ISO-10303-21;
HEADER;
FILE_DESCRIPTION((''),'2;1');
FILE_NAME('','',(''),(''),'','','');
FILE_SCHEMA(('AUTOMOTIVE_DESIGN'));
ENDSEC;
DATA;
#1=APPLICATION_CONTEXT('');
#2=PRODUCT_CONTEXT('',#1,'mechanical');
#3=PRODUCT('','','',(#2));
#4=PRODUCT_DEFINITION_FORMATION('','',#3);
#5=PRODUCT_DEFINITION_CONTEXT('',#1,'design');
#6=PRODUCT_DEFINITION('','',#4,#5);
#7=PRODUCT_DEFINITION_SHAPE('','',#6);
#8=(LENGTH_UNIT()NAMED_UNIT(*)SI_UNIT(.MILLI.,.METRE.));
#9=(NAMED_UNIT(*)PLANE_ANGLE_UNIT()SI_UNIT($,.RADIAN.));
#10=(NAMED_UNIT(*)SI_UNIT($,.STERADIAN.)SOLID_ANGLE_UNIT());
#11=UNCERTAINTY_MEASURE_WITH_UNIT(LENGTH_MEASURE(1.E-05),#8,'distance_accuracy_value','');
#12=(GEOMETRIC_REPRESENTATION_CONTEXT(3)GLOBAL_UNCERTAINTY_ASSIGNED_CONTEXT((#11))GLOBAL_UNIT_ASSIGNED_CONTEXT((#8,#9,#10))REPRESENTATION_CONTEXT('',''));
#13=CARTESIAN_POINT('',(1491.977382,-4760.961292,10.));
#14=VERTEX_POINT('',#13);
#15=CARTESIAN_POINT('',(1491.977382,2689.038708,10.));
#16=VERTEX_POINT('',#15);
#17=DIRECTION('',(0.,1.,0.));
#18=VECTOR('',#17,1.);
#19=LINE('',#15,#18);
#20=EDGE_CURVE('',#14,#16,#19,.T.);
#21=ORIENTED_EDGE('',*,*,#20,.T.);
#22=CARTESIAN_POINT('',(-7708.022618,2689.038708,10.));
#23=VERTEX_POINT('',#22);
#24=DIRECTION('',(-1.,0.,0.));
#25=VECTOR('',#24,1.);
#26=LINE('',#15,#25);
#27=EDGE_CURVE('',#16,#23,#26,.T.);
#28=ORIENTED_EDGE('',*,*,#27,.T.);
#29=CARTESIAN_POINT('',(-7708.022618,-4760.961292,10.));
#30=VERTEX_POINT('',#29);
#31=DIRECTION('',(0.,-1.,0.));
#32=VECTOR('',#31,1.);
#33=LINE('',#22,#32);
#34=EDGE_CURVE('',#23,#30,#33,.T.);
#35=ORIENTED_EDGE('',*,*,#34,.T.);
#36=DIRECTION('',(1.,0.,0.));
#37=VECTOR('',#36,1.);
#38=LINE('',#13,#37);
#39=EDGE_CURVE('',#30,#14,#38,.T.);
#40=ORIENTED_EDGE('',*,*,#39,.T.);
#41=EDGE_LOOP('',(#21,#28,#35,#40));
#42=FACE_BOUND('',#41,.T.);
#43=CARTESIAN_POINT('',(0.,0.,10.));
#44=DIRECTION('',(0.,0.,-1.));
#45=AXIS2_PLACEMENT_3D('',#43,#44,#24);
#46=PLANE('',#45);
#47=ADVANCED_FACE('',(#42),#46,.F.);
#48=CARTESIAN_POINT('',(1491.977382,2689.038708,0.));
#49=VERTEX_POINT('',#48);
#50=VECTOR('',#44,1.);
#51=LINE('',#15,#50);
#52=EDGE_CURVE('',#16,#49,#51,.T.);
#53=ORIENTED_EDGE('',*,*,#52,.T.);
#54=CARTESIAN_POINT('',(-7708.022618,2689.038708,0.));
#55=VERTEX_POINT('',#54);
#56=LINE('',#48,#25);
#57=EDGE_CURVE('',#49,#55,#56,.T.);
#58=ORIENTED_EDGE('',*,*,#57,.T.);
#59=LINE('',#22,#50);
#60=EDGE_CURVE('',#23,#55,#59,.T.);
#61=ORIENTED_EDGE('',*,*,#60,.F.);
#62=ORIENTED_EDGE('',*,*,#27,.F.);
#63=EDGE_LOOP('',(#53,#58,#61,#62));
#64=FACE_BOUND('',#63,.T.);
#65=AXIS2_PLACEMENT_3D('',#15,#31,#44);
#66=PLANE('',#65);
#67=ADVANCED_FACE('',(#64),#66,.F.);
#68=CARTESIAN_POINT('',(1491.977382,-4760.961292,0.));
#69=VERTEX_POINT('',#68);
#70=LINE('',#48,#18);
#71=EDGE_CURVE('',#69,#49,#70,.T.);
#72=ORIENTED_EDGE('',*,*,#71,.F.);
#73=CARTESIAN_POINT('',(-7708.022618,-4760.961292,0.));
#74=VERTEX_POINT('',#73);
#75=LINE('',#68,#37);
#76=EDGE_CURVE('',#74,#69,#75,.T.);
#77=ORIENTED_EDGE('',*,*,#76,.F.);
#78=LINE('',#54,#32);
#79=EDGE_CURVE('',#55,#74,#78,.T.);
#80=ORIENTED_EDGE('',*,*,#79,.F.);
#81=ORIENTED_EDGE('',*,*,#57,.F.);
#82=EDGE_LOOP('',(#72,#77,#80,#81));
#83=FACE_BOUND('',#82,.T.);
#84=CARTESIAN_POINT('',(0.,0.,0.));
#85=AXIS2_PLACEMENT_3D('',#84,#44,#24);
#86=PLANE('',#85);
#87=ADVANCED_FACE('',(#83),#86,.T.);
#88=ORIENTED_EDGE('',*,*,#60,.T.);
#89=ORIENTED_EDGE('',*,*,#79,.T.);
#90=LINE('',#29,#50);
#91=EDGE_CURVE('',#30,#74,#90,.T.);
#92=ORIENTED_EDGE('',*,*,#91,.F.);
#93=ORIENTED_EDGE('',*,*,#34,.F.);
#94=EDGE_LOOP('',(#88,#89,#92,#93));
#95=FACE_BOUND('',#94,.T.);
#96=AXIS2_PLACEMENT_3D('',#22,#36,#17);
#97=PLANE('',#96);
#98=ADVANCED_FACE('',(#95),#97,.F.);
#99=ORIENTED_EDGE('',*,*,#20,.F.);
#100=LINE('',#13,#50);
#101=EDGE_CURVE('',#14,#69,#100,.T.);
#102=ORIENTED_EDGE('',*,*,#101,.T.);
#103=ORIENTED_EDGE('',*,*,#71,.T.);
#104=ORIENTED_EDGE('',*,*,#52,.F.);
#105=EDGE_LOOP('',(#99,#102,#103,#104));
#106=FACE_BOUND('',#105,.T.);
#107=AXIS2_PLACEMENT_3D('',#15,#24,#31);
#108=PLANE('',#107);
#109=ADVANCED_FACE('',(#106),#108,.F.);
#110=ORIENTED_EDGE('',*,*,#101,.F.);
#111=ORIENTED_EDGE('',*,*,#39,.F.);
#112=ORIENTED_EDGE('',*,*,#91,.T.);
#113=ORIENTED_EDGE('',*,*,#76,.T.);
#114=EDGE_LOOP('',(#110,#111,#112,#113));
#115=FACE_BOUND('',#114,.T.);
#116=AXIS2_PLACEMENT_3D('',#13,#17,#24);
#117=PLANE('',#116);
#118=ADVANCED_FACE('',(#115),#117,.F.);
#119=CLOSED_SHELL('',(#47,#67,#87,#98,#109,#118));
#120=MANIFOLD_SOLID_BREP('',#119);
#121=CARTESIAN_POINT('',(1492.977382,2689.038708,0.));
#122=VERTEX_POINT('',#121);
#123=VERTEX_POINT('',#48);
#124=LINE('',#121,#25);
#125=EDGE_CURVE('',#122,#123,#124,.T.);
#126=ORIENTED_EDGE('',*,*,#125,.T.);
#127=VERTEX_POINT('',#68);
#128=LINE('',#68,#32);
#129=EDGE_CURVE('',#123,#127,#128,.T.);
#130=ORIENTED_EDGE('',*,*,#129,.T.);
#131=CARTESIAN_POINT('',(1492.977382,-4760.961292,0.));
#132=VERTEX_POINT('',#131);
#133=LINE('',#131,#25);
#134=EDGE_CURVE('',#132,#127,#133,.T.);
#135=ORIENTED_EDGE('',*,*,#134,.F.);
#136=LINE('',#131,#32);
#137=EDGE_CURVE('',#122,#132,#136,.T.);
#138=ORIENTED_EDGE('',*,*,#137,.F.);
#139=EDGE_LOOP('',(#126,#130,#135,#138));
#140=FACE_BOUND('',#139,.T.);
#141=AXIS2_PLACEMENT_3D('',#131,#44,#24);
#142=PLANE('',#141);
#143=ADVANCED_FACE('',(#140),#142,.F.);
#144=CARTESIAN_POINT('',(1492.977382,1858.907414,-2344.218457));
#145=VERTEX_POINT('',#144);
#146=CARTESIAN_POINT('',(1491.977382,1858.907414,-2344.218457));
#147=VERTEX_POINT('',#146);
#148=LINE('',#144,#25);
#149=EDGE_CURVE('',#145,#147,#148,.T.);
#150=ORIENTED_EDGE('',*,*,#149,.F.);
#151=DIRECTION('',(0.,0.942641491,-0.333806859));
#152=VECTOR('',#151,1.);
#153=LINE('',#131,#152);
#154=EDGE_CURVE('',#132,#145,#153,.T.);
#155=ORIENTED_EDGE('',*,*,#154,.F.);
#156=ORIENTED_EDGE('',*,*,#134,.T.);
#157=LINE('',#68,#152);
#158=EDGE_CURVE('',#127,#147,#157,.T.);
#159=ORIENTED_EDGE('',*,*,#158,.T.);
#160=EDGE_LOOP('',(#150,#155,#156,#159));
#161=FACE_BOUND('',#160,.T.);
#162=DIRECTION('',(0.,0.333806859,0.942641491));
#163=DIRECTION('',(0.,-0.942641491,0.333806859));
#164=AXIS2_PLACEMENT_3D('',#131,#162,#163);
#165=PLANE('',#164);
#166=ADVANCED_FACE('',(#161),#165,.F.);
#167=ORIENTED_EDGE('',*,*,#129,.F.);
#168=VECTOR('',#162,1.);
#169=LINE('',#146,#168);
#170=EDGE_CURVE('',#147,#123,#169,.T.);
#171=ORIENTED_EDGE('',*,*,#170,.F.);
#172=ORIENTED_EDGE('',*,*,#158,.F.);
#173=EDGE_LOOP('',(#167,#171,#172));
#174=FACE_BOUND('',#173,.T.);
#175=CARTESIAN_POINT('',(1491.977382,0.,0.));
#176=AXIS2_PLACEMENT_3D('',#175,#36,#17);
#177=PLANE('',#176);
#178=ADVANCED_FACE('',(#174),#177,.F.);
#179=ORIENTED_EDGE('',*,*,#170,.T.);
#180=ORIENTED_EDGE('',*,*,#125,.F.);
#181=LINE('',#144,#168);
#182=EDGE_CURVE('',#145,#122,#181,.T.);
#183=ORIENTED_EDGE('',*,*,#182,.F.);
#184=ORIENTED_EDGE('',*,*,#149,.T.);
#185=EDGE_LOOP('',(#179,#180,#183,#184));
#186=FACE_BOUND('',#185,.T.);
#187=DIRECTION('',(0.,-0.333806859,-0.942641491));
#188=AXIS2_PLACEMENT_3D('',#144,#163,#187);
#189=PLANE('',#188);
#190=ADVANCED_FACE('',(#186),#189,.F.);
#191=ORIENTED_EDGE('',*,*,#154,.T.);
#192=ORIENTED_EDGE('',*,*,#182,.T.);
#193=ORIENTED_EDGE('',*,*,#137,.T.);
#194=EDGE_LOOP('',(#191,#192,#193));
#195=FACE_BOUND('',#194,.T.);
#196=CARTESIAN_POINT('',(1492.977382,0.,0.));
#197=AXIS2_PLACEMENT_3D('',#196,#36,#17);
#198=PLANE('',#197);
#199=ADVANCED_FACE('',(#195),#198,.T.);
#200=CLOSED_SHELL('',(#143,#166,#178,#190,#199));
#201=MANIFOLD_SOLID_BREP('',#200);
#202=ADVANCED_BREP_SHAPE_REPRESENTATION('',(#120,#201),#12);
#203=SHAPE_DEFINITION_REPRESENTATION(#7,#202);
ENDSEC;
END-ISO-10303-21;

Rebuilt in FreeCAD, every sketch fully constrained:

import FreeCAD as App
import Part
import Sketcher
from FreeCAD import Vector
Q = App.Units.Quantity


def add_polygon(sketch, points):
    """Adds a closed chain of lines whose ends are joined by coincident constraints."""
    first, n = sketch.GeometryCount, len(points)
    for a, b in zip(points, points[1:] + points[:1]):
        sketch.addGeometry(Part.LineSegment(App.Vector(*a, 0), App.Vector(*b, 0)), False)
    for i in range(n):
        sketch.addConstraint(Sketcher.Constraint("Coincident", first + i, 2, first + (i + 1) % n, 1))

doc = App.newDocument("Part")
body = doc.addObject("PartDesign::Body", "Body")

# Sketch on XY plane
sketch1 = body.newObject("Sketcher::SketchObject", "Sketch")
sketch1.AttachmentSupport = (doc.getObject("XY_Plane"), [""])
sketch1.MapMode = "FlatFace"
add_polygon(sketch1, [(-7708, 2689), (-7708, -4761), (1492, -4761), (1492, 2689)])  # lines 0-3
sketch1.addConstraint(Sketcher.Constraint("Vertical", 0))
sketch1.addConstraint(Sketcher.Constraint("Horizontal", 1))
sketch1.addConstraint(Sketcher.Constraint("Vertical", 2))
sketch1.addConstraint(Sketcher.Constraint("Horizontal", 3))
sketch1.addConstraint(Sketcher.Constraint("DistanceX", 1, 1, 1, 2, Q("9200 mm")))
sketch1.addConstraint(Sketcher.Constraint("DistanceY", 0, 2, 0, 1, Q("7450 mm")))
sketch1.addConstraint(Sketcher.Constraint("DistanceX", 0, 2, -1, 1, Q("7708.022618 mm")))
sketch1.addConstraint(Sketcher.Constraint("DistanceY", 0, 2, -1, 1, Q("4760.961292 mm")))
pad1 = body.newObject("PartDesign::Pad", "Pad")
pad1.Profile = sketch1
pad1.Length = 10
body2 = doc.addObject("PartDesign::Body", "Body001")

# Sketch on YZ plane
sketch2 = body2.newObject("Sketcher::SketchObject", "Sketch001")
sketch2.AttachmentSupport = (doc.getObject("YZ_Plane001"), [""])
sketch2.MapMode = "FlatFace"
sketch2.AttachmentOffset = App.Placement(Vector(0, 0, 1491.977382), App.Rotation())
add_polygon(sketch2, [(-4761, 0), (1859, -2344), (2689, 0)])  # lines 0-2
sketch2.addConstraint(Sketcher.Constraint("Horizontal", 2))
sketch2.addConstraint(Sketcher.Constraint("PointOnObject", 1, 2, -1))
sketch2.addConstraint(Sketcher.Constraint("Perpendicular", 0, 1))
sketch2.addConstraint(Sketcher.Constraint("DistanceX", 2, 2, 2, 1, Q("7450 mm")))
sketch2.addConstraint(Sketcher.Constraint("Angle", 0, Q("-19.5 deg")))
sketch2.addConstraint(Sketcher.Constraint("DistanceX", -1, 1, 0, 2, Q("1858.907414 mm")))
pad2 = body2.newObject("PartDesign::Pad", "Pad001")
pad2.Profile = sketch2
pad2.Length = 1

doc.recompute()
